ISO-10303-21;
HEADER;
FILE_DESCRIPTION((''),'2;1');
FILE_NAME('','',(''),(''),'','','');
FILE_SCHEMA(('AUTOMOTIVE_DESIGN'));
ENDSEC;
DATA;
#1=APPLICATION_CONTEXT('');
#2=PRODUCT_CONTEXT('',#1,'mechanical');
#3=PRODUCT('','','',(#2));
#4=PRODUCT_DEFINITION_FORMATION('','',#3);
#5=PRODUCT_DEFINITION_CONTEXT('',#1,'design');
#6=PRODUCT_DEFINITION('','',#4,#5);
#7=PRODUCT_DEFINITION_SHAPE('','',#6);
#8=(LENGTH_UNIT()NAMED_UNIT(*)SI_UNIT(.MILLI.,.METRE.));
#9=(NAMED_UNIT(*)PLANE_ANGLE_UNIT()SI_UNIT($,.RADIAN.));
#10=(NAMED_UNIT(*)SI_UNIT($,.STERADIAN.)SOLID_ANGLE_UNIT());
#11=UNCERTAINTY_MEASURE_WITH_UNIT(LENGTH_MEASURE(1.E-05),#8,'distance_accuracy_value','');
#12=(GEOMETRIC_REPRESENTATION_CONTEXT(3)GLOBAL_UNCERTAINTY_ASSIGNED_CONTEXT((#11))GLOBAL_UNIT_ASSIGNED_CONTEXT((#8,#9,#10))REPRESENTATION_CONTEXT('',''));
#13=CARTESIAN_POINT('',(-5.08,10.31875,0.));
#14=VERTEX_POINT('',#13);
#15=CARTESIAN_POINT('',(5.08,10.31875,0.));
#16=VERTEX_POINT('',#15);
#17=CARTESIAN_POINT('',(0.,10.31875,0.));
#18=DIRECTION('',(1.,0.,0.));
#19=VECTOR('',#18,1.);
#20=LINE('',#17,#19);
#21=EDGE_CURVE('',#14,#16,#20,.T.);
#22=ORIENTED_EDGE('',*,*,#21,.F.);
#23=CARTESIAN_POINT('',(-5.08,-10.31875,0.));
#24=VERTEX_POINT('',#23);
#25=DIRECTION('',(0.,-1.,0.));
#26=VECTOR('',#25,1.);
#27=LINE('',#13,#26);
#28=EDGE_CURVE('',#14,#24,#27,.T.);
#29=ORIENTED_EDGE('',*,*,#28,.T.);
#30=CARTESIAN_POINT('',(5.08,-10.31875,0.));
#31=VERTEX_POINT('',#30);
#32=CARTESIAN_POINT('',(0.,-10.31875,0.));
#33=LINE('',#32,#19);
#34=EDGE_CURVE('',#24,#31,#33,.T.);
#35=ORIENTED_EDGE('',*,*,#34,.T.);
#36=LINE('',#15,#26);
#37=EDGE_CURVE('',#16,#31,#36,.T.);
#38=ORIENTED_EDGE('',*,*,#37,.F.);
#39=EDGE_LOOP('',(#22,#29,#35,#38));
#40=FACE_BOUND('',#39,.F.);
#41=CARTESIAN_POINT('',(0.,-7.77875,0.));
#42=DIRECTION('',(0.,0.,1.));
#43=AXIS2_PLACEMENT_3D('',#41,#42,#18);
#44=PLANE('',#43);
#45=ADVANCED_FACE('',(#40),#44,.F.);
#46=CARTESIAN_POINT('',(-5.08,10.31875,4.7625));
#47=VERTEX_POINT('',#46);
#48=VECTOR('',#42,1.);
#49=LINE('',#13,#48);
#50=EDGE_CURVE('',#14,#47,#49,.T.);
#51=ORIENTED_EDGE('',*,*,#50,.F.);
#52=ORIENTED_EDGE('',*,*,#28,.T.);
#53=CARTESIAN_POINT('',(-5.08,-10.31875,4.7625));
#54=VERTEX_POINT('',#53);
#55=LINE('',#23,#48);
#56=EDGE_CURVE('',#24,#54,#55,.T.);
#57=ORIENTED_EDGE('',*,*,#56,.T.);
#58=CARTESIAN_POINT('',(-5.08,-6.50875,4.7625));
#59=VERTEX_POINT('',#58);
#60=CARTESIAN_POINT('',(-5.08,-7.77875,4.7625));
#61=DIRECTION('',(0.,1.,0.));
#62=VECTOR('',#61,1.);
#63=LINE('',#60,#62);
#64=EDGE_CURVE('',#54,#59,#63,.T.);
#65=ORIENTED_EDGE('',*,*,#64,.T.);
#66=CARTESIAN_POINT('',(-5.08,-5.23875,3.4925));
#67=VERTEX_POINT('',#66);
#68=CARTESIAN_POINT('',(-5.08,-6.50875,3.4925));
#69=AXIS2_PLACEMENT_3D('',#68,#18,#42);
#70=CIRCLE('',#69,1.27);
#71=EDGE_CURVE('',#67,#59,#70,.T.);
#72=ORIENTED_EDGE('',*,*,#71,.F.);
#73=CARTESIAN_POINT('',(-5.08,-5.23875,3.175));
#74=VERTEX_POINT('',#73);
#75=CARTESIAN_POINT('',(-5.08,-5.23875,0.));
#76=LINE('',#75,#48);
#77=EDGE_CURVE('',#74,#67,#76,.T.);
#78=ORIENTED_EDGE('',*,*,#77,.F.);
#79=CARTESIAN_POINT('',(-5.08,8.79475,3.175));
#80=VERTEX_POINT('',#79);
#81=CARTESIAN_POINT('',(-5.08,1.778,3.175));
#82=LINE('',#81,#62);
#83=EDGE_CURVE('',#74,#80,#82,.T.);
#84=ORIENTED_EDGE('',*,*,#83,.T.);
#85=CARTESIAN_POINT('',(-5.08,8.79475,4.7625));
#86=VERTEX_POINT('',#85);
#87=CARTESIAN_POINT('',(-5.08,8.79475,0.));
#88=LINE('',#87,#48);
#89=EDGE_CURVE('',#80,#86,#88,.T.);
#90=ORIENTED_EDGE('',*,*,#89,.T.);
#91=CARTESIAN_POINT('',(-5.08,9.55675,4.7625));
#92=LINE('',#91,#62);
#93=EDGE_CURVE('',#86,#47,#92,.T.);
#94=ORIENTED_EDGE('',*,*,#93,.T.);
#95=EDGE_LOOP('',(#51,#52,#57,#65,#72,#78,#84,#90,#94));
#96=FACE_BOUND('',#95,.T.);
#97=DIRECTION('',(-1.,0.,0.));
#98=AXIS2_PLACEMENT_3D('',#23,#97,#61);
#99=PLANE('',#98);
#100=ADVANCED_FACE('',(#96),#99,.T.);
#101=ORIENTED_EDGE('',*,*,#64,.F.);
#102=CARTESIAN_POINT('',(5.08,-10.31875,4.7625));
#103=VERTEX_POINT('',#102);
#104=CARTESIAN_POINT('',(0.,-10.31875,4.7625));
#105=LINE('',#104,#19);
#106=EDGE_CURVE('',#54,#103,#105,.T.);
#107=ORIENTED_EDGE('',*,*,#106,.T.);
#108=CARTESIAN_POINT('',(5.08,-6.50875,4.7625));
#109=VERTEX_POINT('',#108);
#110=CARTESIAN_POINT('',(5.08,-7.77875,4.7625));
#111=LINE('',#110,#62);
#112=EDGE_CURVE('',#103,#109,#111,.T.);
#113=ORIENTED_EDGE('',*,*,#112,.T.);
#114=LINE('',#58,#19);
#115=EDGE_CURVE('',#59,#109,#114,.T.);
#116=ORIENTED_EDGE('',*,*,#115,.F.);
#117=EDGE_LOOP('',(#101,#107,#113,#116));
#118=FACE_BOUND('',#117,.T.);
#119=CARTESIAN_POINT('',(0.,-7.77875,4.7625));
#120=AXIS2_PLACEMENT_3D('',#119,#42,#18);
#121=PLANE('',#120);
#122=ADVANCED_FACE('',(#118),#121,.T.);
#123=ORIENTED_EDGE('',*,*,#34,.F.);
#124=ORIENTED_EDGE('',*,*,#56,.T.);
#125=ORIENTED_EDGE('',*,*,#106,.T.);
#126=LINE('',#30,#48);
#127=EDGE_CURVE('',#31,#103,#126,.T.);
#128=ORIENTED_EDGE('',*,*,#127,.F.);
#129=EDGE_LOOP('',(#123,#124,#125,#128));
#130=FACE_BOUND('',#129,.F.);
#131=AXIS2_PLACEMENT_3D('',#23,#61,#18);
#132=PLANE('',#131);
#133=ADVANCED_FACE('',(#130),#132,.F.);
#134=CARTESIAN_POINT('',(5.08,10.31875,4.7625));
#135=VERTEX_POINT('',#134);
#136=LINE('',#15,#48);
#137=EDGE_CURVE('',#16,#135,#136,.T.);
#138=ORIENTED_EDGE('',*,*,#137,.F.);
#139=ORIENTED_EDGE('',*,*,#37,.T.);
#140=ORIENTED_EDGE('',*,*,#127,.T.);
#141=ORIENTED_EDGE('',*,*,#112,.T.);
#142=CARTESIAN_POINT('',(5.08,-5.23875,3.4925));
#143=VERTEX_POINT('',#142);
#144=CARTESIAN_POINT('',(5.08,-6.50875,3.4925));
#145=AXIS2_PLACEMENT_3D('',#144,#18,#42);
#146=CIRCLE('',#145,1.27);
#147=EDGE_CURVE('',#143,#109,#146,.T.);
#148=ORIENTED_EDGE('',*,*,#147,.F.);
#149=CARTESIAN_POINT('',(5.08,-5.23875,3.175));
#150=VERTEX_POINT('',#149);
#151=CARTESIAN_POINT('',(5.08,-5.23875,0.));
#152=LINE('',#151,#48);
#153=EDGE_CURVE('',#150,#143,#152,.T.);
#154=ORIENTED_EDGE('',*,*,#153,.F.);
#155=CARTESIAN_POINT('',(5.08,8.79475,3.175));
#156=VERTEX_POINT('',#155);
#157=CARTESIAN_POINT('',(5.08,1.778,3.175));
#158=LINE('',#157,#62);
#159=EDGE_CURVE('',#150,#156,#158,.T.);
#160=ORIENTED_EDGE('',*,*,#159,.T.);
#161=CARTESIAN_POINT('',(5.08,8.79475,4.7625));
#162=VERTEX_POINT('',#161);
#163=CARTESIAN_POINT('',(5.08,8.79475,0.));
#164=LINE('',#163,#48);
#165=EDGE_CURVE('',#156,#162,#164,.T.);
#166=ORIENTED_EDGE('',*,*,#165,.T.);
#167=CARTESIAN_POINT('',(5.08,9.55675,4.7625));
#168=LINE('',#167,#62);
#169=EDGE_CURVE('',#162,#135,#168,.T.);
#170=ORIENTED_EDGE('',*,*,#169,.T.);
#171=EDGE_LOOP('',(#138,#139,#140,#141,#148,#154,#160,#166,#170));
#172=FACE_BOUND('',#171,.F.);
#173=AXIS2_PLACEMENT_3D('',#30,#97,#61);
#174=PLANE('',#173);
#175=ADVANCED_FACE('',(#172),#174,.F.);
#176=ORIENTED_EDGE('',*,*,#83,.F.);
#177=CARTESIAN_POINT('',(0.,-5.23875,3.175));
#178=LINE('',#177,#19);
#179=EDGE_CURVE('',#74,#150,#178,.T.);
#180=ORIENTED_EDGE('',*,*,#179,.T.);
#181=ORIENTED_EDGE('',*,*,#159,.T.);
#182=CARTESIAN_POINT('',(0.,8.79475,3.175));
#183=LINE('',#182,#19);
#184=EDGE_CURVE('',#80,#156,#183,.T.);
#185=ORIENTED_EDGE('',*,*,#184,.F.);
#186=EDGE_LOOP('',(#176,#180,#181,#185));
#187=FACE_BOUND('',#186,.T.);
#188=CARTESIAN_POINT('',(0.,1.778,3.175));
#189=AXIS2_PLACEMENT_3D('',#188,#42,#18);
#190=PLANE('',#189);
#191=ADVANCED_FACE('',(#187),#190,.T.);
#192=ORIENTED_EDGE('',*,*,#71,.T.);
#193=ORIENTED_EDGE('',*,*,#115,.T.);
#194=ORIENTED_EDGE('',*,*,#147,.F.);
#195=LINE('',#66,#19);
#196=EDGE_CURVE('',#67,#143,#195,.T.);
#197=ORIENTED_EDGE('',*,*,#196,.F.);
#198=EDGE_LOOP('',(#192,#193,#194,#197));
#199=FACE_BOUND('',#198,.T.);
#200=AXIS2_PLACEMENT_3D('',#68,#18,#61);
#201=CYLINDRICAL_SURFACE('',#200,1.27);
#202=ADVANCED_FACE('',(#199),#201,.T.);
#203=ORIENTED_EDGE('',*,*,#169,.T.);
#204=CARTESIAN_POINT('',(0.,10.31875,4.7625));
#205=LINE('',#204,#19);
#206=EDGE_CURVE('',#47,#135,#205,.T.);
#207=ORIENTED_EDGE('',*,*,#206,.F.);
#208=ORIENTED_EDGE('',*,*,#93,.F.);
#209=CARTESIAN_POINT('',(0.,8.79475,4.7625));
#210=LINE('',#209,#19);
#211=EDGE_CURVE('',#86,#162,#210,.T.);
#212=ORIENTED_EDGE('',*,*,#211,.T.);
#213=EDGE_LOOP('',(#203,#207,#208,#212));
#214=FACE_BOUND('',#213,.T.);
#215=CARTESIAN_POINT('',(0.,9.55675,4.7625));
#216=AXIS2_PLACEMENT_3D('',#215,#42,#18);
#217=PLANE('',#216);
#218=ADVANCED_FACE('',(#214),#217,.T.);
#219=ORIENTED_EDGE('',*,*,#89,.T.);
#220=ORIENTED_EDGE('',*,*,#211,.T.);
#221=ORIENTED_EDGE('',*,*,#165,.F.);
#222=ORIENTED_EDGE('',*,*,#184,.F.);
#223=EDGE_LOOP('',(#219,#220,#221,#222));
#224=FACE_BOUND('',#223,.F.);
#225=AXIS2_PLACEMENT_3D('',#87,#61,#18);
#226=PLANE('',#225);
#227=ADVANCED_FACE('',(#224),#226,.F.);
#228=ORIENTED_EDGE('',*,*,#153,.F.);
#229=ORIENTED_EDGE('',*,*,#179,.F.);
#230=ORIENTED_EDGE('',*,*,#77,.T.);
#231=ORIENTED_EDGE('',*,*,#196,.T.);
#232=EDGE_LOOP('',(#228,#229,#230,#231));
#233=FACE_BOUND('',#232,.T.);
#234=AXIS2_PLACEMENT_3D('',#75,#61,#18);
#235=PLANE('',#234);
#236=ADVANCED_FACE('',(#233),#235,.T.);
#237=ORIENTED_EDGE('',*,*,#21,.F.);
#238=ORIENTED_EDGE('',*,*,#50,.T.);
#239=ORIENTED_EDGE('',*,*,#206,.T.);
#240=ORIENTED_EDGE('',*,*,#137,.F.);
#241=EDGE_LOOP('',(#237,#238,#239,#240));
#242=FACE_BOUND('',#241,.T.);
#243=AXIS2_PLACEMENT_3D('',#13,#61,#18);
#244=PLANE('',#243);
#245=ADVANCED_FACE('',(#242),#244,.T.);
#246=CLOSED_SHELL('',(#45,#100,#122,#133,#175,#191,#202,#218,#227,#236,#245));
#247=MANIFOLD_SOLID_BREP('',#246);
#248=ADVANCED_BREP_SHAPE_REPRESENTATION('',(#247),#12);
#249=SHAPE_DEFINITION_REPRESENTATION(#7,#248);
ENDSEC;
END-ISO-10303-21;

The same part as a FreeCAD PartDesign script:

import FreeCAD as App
import Part
import Sketcher
Q = App.Units.Quantity


def edges_at(feature, points):
    """Names of the edges that pass closest to the given points."""
    edges = feature.Shape.Edges
    near = lambda p: min(range(len(edges)), key=lambda i: edges[i].distToShape(Part.Vertex(*p))[0])
    return sorted({f"Edge{near(p) + 1}" for p in points})


def add_polygon(sketch, points):
    """Adds a closed chain of lines whose ends are joined by coincident constraints."""
    first, n = sketch.GeometryCount, len(points)
    for a, b in zip(points, points[1:] + points[:1]):
        sketch.addGeometry(Part.LineSegment(App.Vector(*a, 0), App.Vector(*b, 0)), False)
    for i in range(n):
        sketch.addConstraint(Sketcher.Constraint("Coincident", first + i, 2, first + (i + 1) % n, 1))

doc = App.newDocument("Part")
body = doc.addObject("PartDesign::Body", "Body")

sketch1 = body.newObject("Sketcher::SketchObject", "Sketch")
sketch1.AttachmentSupport = (doc.getObject("XY_Plane"), [""])
sketch1.MapMode = "FlatFace"
add_polygon(sketch1, [(-5.08, 8.79475), (-5.08, -5.23875), (5.08, -5.23875), (5.08, 8.79475)])
sketch1.addConstraint([
    Sketcher.Constraint("Vertical", 0),
    Sketcher.Constraint("Horizontal", 1),
    Sketcher.Constraint("Vertical", 2),
    Sketcher.Constraint("Horizontal", 3),
    Sketcher.Constraint("DistanceX", 1, 1, 1, 2, Q("0.4 in")),
    Sketcher.Constraint("DistanceX", 0, 2, -1, 1, Q("0.2 in")),
    Sketcher.Constraint("DistanceY", 0, 2, 0, 1, Q("0.5525 in")),
    Sketcher.Constraint("DistanceY", 0, 2, -1, 1, 5.23875),
])
pad1 = body.newObject("PartDesign::Pad", "Pad")
pad1.Profile = sketch1
pad1.Length = Q("0.125 in")

sketch2 = body.newObject("Sketcher::SketchObject", "Sketch001")
sketch2.AttachmentSupport = (doc.getObject("XY_Plane"), [""])
sketch2.MapMode = "FlatFace"
add_polygon(sketch2, [(-5.08, -5.23875), (-5.08, -10.31875), (5.08, -10.31875), (5.08, -5.23875)])
add_polygon(sketch2, [(-5.08, 10.31875), (-5.08, 8.79475), (5.08, 8.79475), (5.08, 10.31875)])
sketch2.addConstraint([
    Sketcher.Constraint("Vertical", 0),
    Sketcher.Constraint("Horizontal", 1),
    Sketcher.Constraint("Vertical", 2),
    Sketcher.Constraint("Horizontal", 3),
    Sketcher.Constraint("Vertical", 4),
    Sketcher.Constraint("Horizontal", 5),
    Sketcher.Constraint("Vertical", 6),
    Sketcher.Constraint("Horizontal", 7),
    Sketcher.Constraint("Symmetric", 0, 2, 6, 2, -1, 1),
    Sketcher.Constraint("Vertical", 3, 2, 4, 2),
    Sketcher.Constraint("Vertical", 2, 2, 5, 2),
    Sketcher.Constraint("DistanceX", 1, 1, 1, 2, Q("0.4 in")),
    Sketcher.Constraint("DistanceY", 0, 2, 0, 1, Q("0.2 in")),
    Sketcher.Constraint("DistanceY", 4, 2, 4, 1, Q("0.06 in")),
    Sketcher.Constraint("DistanceY", 0, 2, -1, 1, Q("0.40625 in")),
])
pad2 = body.newObject("PartDesign::Pad", "Pad001")
pad2.Profile = sketch2
pad2.Length = Q("0.1875 in")
doc.recompute()

fillet = body.newObject("PartDesign::Fillet", "Fillet")
fillet.Base = (pad2, edges_at(pad2, [(0, -5.239, 4.763)]))
fillet.Radius = Q("0.05 in")

doc.recompute()
